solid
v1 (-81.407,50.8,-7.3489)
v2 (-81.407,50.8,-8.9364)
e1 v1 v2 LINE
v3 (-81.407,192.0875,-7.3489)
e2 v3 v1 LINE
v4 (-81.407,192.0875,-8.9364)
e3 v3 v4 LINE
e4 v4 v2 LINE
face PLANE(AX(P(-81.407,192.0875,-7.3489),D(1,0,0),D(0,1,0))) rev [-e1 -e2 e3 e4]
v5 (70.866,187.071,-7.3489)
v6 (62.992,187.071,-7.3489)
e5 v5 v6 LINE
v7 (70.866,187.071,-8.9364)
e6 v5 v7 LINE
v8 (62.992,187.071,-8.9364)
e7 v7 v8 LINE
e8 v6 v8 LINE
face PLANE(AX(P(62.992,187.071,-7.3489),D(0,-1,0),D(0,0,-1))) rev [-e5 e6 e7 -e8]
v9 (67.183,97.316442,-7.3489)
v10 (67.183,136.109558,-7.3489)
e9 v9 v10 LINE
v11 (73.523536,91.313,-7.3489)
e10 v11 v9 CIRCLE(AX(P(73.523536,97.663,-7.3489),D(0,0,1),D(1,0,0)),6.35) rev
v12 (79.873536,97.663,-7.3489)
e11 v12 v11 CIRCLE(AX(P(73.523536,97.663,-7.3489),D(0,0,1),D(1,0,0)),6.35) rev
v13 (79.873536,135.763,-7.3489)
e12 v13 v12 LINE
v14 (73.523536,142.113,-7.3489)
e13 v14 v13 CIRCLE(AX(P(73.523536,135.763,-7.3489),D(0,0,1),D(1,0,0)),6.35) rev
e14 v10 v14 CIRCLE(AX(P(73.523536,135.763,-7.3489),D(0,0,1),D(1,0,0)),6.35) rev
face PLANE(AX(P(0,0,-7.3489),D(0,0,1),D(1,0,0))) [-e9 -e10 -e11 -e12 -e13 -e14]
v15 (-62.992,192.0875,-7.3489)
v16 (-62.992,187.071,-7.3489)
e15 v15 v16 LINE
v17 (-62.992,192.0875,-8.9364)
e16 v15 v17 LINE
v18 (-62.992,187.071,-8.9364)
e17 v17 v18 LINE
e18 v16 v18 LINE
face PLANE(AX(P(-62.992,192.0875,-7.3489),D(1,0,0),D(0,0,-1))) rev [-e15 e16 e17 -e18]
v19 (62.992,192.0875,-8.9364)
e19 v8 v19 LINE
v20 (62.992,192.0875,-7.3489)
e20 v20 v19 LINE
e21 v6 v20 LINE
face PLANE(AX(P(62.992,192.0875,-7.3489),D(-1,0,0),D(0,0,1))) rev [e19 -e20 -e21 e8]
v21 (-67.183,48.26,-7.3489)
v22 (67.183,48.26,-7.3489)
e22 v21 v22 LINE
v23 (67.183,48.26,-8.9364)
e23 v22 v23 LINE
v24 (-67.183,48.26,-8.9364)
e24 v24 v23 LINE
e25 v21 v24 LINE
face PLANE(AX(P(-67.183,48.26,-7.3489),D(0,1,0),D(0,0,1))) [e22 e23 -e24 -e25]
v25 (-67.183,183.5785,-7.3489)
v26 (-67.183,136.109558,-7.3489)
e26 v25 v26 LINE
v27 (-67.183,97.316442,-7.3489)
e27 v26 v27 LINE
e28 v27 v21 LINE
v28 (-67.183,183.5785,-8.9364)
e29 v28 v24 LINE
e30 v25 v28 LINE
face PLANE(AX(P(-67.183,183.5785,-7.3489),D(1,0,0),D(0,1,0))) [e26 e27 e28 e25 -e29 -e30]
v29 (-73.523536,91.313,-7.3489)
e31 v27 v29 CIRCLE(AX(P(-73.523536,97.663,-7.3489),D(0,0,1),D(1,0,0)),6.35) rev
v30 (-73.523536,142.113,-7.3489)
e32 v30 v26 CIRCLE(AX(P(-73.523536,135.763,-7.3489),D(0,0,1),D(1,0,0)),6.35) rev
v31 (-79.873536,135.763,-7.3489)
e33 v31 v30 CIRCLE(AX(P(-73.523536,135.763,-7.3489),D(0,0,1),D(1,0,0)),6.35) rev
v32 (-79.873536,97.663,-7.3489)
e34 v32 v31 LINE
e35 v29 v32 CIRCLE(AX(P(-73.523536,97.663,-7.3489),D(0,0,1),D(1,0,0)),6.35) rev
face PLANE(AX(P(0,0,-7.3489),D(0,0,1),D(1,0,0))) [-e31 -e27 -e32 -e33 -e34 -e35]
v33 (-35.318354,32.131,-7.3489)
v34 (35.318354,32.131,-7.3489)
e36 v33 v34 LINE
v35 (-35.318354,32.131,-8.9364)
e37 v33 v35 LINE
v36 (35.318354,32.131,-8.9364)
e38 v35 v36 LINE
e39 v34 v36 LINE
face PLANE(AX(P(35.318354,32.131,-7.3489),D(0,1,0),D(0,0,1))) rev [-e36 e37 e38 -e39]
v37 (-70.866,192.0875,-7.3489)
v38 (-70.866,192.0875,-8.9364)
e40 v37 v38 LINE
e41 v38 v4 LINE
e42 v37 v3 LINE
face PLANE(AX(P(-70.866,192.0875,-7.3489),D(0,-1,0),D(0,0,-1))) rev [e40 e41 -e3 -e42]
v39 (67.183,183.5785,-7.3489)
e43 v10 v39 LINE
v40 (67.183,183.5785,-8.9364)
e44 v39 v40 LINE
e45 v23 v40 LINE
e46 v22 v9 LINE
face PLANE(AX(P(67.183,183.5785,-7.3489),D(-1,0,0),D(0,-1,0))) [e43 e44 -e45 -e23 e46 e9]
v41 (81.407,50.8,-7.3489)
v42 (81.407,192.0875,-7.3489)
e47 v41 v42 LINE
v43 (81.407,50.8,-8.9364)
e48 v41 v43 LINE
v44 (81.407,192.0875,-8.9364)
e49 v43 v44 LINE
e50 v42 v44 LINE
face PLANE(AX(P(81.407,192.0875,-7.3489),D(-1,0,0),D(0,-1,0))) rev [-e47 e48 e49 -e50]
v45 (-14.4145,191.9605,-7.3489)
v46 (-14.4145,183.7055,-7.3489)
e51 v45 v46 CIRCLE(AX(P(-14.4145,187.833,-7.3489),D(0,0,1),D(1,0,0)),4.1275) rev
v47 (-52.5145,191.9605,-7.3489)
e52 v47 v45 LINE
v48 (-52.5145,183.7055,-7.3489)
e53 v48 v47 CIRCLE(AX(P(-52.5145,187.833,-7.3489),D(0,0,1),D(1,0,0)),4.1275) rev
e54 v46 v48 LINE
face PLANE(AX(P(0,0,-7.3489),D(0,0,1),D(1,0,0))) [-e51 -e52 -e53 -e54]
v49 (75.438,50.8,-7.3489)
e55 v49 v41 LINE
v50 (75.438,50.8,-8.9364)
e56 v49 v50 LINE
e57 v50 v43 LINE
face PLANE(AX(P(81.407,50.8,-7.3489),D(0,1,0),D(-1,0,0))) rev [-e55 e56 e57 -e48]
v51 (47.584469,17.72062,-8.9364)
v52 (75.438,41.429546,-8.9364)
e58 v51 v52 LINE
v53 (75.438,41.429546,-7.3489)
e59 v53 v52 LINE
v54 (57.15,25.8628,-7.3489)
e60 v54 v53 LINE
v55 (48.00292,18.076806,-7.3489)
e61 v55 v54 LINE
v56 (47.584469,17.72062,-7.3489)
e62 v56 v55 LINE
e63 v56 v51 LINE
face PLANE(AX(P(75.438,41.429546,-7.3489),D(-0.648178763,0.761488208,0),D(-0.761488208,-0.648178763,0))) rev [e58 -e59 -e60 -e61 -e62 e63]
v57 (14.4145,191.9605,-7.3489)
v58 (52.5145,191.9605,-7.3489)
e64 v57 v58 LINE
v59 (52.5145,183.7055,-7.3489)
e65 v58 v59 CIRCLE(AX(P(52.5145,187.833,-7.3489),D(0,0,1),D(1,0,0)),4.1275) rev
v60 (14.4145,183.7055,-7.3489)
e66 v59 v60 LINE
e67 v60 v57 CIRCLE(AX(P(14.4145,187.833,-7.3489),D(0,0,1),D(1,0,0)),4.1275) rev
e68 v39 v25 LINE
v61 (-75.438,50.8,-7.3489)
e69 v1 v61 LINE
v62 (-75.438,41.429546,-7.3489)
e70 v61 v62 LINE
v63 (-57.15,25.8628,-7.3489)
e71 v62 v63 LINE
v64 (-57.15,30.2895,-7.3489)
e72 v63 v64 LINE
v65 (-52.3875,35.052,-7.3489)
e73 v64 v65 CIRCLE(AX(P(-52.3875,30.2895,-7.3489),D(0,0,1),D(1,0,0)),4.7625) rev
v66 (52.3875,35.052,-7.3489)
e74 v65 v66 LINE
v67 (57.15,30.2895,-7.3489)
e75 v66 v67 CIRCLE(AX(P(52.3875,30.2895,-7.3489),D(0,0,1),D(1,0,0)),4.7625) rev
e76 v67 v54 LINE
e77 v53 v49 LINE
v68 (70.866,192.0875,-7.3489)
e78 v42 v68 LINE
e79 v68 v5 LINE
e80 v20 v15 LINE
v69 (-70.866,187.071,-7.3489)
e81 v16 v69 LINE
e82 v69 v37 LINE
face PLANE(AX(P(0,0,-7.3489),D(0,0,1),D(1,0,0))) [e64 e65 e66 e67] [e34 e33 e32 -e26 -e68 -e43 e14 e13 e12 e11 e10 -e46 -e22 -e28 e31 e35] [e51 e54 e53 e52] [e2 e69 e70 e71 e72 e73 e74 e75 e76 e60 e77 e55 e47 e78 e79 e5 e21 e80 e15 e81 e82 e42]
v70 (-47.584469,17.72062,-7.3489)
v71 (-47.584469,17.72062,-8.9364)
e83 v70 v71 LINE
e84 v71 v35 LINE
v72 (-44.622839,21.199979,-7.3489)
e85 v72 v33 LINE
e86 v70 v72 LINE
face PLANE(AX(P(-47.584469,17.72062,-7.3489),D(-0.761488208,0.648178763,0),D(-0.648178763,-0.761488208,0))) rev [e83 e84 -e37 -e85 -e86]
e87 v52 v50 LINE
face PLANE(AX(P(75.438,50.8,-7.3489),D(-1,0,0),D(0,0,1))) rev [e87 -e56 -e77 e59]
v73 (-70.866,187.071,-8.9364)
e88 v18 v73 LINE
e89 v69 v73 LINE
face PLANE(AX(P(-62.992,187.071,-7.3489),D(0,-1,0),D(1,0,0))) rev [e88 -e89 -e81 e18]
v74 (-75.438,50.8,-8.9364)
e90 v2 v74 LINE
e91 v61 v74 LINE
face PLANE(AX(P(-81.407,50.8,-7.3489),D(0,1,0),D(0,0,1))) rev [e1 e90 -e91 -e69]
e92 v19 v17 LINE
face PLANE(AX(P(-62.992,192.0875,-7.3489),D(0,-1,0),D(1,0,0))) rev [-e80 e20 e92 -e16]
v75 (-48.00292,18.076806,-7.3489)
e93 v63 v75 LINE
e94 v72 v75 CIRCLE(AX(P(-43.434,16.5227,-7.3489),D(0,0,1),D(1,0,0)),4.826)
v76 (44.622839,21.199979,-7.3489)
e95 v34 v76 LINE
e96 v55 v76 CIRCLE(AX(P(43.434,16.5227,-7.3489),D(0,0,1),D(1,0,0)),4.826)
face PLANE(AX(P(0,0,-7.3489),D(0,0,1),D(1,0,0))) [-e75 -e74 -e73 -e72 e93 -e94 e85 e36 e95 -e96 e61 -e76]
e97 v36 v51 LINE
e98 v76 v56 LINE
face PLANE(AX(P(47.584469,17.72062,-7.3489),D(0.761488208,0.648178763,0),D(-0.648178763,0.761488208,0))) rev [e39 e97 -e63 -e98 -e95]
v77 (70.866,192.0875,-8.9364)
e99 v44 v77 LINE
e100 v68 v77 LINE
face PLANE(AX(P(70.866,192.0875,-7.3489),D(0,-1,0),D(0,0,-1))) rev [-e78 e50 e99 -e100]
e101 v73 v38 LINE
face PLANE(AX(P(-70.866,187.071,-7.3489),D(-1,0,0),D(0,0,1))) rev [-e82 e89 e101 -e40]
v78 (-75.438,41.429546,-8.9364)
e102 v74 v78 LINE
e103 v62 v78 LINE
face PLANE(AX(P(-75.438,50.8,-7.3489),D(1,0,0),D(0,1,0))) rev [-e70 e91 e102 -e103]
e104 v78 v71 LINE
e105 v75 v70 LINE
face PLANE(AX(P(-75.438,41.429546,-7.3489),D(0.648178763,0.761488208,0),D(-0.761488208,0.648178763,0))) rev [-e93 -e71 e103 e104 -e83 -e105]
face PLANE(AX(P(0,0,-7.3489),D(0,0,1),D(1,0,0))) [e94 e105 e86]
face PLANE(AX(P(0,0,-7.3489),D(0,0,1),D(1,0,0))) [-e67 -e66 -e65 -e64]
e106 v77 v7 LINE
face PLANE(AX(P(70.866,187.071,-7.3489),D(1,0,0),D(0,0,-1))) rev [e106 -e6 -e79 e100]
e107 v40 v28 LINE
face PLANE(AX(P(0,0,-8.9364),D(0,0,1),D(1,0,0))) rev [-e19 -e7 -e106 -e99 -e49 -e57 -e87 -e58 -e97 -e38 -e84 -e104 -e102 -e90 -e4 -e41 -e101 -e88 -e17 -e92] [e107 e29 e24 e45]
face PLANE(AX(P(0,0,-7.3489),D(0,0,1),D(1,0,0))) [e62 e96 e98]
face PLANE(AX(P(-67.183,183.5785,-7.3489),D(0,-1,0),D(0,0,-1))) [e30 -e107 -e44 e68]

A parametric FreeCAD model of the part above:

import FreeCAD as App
import Part
import Sketcher

V = App.Vector
Q = App.Units.Quantity


def add_polygon(sketch, points):
    """Adds a closed chain of lines whose ends are joined by coincident constraints."""
    first, n = sketch.GeometryCount, len(points)
    for a, b in zip(points, points[1:] + points[:1]):
        sketch.addGeometry(Part.LineSegment(App.Vector(*a, 0), App.Vector(*b, 0)), False)
    for i in range(n):
        sketch.addConstraint(Sketcher.Constraint("Coincident", first + i, 2, first + (i + 1) % n, 1))

doc = App.newDocument("Part")
body = doc.addObject("PartDesign::Body", "Body")

# Sketch on XY plane
sketch1 = body.newObject("Sketcher::SketchObject", "Sketch")
sketch1.AttachmentSupport = (doc.getObject("XY_Plane"), [""])
sketch1.MapMode = "FlatFace"
sketch1.AttachmentOffset = App.Placement(V(0, 0, -8.9364), App.Rotation())
add_polygon(sketch1, [(62.992, 192.0875), (-62.992, 192.0875), (-62.992, 187.071), (-70.866, 187.071), (-70.866, 192.0875), (-81.407, 192.0875), (-81.407, 50.8), (-75.438, 50.8), (-75.438, 41.429546), (-47.584469, 17.72062), (-35.318354, 32.131), (35.318354, 32.131), (47.584469, 17.72062), (75.438, 41.429546), (75.438, 50.8), (81.407, 50.8), (81.407, 192.0875), (70.866, 192.0875), (70.866, 187.071), (62.992, 187.071)])  # lines 0-19
add_polygon(sketch1, [(-67.183, 48.26), (-67.183, 183.5785), (67.183, 183.5785), (67.183, 48.26)])  # lines 20-23
sketch1.addConstraint([
    Sketcher.Constraint("Horizontal", 0),
    Sketcher.Constraint("Vertical", 1),
    Sketcher.Constraint("Horizontal", 2),
    Sketcher.Constraint("Vertical", 3),
    Sketcher.Constraint("Horizontal", 4),
    Sketcher.Constraint("Vertical", 5),
    Sketcher.Constraint("Horizontal", 6),
    Sketcher.Constraint("Vertical", 7),
    Sketcher.Constraint("Horizontal", 10),
    Sketcher.Constraint("Vertical", 13),
    Sketcher.Constraint("Horizontal", 14),
    Sketcher.Constraint("Vertical", 15),
    Sketcher.Constraint("Horizontal", 16),
    Sketcher.Constraint("Vertical", 17),
    Sketcher.Constraint("Horizontal", 18),
    Sketcher.Constraint("Vertical", 19),
    Sketcher.Constraint("Vertical", 20),
    Sketcher.Constraint("Horizontal", 21),
    Sketcher.Constraint("Vertical", 22),
    Sketcher.Constraint("Horizontal", 23),
    Sketcher.Constraint("Symmetric", 8, 2, 11, 2, -2),
    Sketcher.Constraint("Symmetric", 7, 2, 12, 2, -2),
    Sketcher.Constraint("Symmetric", 5, 2, 14, 2, -2),
    Sketcher.Constraint("Symmetric", 3, 2, 16, 2, -2),
    Sketcher.Constraint("Symmetric", 1, 2, 18, 2, -2),
    Sketcher.Constraint("Perpendicular", 8, 9),
    Sketcher.Constraint("Perpendicular", 11, 12),
    Sketcher.Constraint("Horizontal", 0, 2, 3, 2),
    Sketcher.Constraint("DistanceY", -1, 1, 5, 2, Q("2 in")),
    Sketcher.Constraint("DistanceX", 0, 2, 0, 1, Q("4.96 in")),
    Sketcher.Constraint("DistanceX", 2, 2, 2, 1, Q("0.31 in")),
    Sketcher.Constraint("DistanceX", 21, 1, 21, 2, Q("5.29 in")),
    Sketcher.Constraint("DistanceY", -1, 1, 22, 2, Q("1.9 in")),
    Sketcher.Constraint("DistanceY", 9, 2, 1, 2, Q("6.1 in")),
    Sketcher.Constraint("DistanceX", 4, 2, 4, 1, Q("0.415 in")),
    Sketcher.Constraint("DistanceX", 6, 1, 6, 2, Q("0.235 in")),
    Sketcher.Constraint("DistanceY", 5, 2, 5, 1, Q("5.5625 in")),
    Sketcher.Constraint("DistanceX", 4, 2, 20, 2, Q("0.56 in")),
    Sketcher.Constraint("DistanceY", 1, 2, 1, 1, Q("0.1975 in")),
    Sketcher.Constraint("DistanceY", 20, 1, 20, 2, Q("5.3275 in")),
    Sketcher.Constraint("DistanceX", 10, 1, 10, 2, Q("70.636708 mm")),
    Sketcher.Constraint("Distance", 9, Q("18.923969 mm")),
    Sketcher.Constraint("DistanceY", 7, 2, 7, 1, Q("9.370454 mm")),
])
pad1 = body.newObject("PartDesign::Pad", "Pad")
pad1.Profile = sketch1
pad1.Length = Q("0.0625 in")

doc.recompute()
